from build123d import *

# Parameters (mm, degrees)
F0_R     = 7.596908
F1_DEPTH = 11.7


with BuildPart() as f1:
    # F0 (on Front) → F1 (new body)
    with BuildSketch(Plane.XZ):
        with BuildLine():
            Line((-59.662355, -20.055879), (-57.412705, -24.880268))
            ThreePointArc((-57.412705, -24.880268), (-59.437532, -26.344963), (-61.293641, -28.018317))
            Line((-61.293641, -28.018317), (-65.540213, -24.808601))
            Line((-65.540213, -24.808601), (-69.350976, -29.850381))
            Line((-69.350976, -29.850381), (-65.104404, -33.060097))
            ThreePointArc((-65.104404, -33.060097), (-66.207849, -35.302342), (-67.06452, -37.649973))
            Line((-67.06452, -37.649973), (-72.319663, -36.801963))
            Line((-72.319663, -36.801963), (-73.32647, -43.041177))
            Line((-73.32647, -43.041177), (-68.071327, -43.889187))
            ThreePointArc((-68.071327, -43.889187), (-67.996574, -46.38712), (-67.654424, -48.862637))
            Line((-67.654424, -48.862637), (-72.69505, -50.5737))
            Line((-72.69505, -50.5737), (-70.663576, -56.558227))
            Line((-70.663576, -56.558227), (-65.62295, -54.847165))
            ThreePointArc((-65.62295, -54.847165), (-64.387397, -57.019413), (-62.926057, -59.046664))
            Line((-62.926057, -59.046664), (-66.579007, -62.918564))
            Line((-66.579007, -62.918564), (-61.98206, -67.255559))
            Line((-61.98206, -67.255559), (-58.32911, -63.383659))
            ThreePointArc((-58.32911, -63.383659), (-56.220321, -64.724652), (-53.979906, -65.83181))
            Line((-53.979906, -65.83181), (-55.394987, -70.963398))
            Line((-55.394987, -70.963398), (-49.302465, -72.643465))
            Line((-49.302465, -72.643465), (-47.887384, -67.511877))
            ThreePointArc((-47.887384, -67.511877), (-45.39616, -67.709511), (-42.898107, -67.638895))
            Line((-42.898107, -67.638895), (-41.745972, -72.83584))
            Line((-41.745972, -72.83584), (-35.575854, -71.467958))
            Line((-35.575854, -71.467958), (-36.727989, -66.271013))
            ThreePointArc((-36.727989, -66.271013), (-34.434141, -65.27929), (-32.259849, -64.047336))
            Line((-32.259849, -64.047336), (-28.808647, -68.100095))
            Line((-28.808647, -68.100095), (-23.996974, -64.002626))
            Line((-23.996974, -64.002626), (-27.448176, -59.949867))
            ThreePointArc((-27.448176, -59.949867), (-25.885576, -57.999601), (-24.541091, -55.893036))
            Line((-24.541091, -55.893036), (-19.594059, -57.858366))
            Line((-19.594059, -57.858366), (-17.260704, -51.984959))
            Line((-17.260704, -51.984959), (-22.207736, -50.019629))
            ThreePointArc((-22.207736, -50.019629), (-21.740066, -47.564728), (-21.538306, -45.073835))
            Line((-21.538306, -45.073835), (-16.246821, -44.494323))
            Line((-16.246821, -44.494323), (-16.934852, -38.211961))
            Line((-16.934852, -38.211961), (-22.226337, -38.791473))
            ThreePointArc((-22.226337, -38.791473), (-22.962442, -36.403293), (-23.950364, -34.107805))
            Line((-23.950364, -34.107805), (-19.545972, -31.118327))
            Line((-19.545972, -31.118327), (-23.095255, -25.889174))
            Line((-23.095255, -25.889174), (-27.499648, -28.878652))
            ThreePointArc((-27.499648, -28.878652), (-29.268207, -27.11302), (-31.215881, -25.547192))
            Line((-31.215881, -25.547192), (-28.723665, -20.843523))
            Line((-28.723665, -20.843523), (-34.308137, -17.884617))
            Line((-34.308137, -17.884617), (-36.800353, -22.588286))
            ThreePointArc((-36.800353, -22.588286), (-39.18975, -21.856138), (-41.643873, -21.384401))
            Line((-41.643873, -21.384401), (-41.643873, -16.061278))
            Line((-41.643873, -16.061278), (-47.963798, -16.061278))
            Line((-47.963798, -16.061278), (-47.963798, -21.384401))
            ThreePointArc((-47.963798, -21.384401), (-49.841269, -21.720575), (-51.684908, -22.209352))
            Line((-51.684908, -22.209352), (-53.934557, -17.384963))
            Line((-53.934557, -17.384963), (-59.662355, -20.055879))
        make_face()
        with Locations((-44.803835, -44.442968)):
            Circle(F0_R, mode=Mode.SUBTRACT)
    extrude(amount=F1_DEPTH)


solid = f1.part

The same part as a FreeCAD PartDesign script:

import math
import FreeCAD as App
import Part
import Sketcher
from FreeCAD import Vector
Q = App.Units.Quantity

doc = App.newDocument("Part")
body = doc.addObject("PartDesign::Body", "Body")

sketch1 = body.newObject("Sketcher::SketchObject", "Sketch")
sketch1.AttachmentSupport = (doc.getObject("XZ_Plane"), [""])
sketch1.MapMode = "FlatFace"
sketch1.addGeometry([
    Part.LineSegment(Vector(-59.7, -20.1, 0), Vector(-57.4, -24.9, 0)),
    Part.ArcOfCircle(Part.Circle(Vector(-44.8, -44.4, 0), Vector(0, 0, 1), 23.3), math.radians(122.8), math.radians(135.11)),
    Part.LineSegment(Vector(-61.3, -28, 0), Vector(-65.5, -24.8, 0)),
    Part.LineSegment(Vector(-65.5, -24.8, 0), Vector(-69.4, -29.9, 0)),
    Part.LineSegment(Vector(-69.4, -29.9, 0), Vector(-65.1, -33.1, 0)),
    Part.ArcOfCircle(Part.Circle(Vector(-44.8, -44.4, 0), Vector(0, 0, 1), 23.3), math.radians(150.72), math.radians(163.03)),
    Part.LineSegment(Vector(-67.1, -37.6, 0), Vector(-72.3, -36.8, 0)),
    Part.LineSegment(Vector(-72.3, -36.8, 0), Vector(-73.3, -43, 0)),
    Part.LineSegment(Vector(-73.3, -43, 0), Vector(-68.1, -43.9, 0)),
    Part.ArcOfCircle(Part.Circle(Vector(-44.8, -44.4, 0), Vector(0, 0, 1), 23.3), math.radians(178.64), math.radians(190.95)),
    Part.LineSegment(Vector(-67.7, -48.9, 0), Vector(-72.7, -50.6, 0)),
    Part.LineSegment(Vector(-72.7, -50.6, 0), Vector(-70.7, -56.6, 0)),
    Part.LineSegment(Vector(-70.7, -56.6, 0), Vector(-65.6, -54.8, 0)),
    Part.ArcOfCircle(Part.Circle(Vector(-44.8, -44.4, 0), Vector(0, 0, 1), 23.3), math.radians(-153.45), math.radians(-141.14)),
    Part.LineSegment(Vector(-62.9, -59, 0), Vector(-66.6, -62.9, 0)),
    Part.LineSegment(Vector(-66.6, -62.9, 0), Vector(-62, -67.3, 0)),
    Part.LineSegment(Vector(-62, -67.3, 0), Vector(-58.3, -63.4, 0)),
    Part.ArcOfCircle(Part.Circle(Vector(-44.8, -44.4, 0), Vector(0, 0, 1), 23.3), math.radians(-125.53), math.radians(-113.22)),
    Part.LineSegment(Vector(-54, -65.8, 0), Vector(-55.4, -71, 0)),
    Part.LineSegment(Vector(-55.4, -71, 0), Vector(-49.3, -72.6, 0)),
    Part.LineSegment(Vector(-49.3, -72.6, 0), Vector(-47.9, -67.5, 0)),
    Part.ArcOfCircle(Part.Circle(Vector(-44.8, -44.4, 0), Vector(0, 0, 1), 23.3), math.radians(-97.61), math.radians(-85.3)),
    Part.LineSegment(Vector(-42.9, -67.6, 0), Vector(-41.7, -72.8, 0)),
    Part.LineSegment(Vector(-41.7, -72.8, 0), Vector(-35.6, -71.5, 0)),
    Part.LineSegment(Vector(-35.6, -71.5, 0), Vector(-36.7, -66.3, 0)),
    Part.ArcOfCircle(Part.Circle(Vector(-44.8, -44.4, 0), Vector(0, 0, 1), 23.3), math.radians(-69.7), math.radians(-57.39)),
    Part.LineSegment(Vector(-32.3, -64, 0), Vector(-28.8, -68.1, 0)),
    Part.LineSegment(Vector(-28.8, -68.1, 0), Vector(-24, -64, 0)),
    Part.LineSegment(Vector(-24, -64, 0), Vector(-27.4, -59.9, 0)),
    Part.ArcOfCircle(Part.Circle(Vector(-44.8, -44.4, 0), Vector(0, 0, 1), 23.3), math.radians(-41.78), math.radians(-29.47)),
    Part.LineSegment(Vector(-24.5, -55.9, 0), Vector(-19.6, -57.9, 0)),
    Part.LineSegment(Vector(-19.6, -57.9, 0), Vector(-17.3, -52, 0)),
    Part.LineSegment(Vector(-17.3, -52, 0), Vector(-22.2, -50, 0)),
    Part.ArcOfCircle(Part.Circle(Vector(-44.8, -44.4, 0), Vector(0, 0, 1), 23.3), math.radians(-13.86), math.radians(-1.55)),
    Part.LineSegment(Vector(-21.5, -45.1, 0), Vector(-16.2, -44.5, 0)),
    Part.LineSegment(Vector(-16.2, -44.5, 0), Vector(-16.9, -38.2, 0)),
    Part.LineSegment(Vector(-16.9, -38.2, 0), Vector(-22.2, -38.8, 0)),
    Part.ArcOfCircle(Part.Circle(Vector(-44.8, -44.4, 0), Vector(0, 0, 1), 23.3), math.radians(14.05), math.radians(26.36)),
    Part.LineSegment(Vector(-24, -34.1, 0), Vector(-19.5, -31.1, 0)),
    Part.LineSegment(Vector(-19.5, -31.1, 0), Vector(-23.1, -25.9, 0)),
    Part.LineSegment(Vector(-23.1, -25.9, 0), Vector(-27.5, -28.9, 0)),
    Part.ArcOfCircle(Part.Circle(Vector(-44.8, -44.4, 0), Vector(0, 0, 1), 23.3), math.radians(41.97), math.radians(54.28)),
    Part.LineSegment(Vector(-31.2, -25.5, 0), Vector(-28.7, -20.8, 0)),
    Part.LineSegment(Vector(-28.7, -20.8, 0), Vector(-34.3, -17.9, 0)),
    Part.LineSegment(Vector(-34.3, -17.9, 0), Vector(-36.8, -22.6, 0)),
    Part.ArcOfCircle(Part.Circle(Vector(-44.8, -44.4, 0), Vector(0, 0, 1), 23.3), math.radians(69.89), math.radians(82.2)),
    Part.LineSegment(Vector(-41.6, -21.4, 0), Vector(-41.6, -16.1, 0)),
    Part.LineSegment(Vector(-41.6, -16.1, 0), Vector(-48, -16.1, 0)),
    Part.LineSegment(Vector(-48, -16.1, 0), Vector(-48, -21.4, 0)),
    Part.ArcOfCircle(Part.Circle(Vector(-44.8, -44.4, 0), Vector(0, 0, 1), 23.3), math.radians(97.8), math.radians(107.2)),
    Part.LineSegment(Vector(-51.7, -22.2, 0), Vector(-53.9, -17.4, 0)),
    Part.LineSegment(Vector(-53.9, -17.4, 0), Vector(-59.7, -20.1, 0)),
    Part.Circle(Vector(-44.8, -44.4, 0), Vector(0, 0, 1), 7.6),
], False)
sketch1.addConstraint([
    Sketcher.Constraint("Coincident", 0, 2, 1, 1),
    Sketcher.Constraint("Coincident", 1, 2, 2, 1),
    Sketcher.Constraint("Coincident", 2, 2, 3, 1),
    Sketcher.Constraint("Coincident", 3, 2, 4, 1),
    Sketcher.Constraint("Coincident", 4, 2, 5, 1),
    Sketcher.Constraint("Coincident", 5, 2, 6, 1),
    Sketcher.Constraint("Coincident", 6, 2, 7, 1),
    Sketcher.Constraint("Coincident", 7, 2, 8, 1),
    Sketcher.Constraint("Coincident", 8, 2, 9, 1),
    Sketcher.Constraint("Coincident", 9, 2, 10, 1),
    Sketcher.Constraint("Coincident", 10, 2, 11, 1),
    Sketcher.Constraint("Coincident", 11, 2, 12, 1),
    Sketcher.Constraint("Coincident", 12, 2, 13, 1),
    Sketcher.Constraint("Coincident", 13, 2, 14, 1),
    Sketcher.Constraint("Coincident", 14, 2, 15, 1),
    Sketcher.Constraint("Coincident", 15, 2, 16, 1),
    Sketcher.Constraint("Coincident", 16, 2, 17, 1),
    Sketcher.Constraint("Coincident", 17, 2, 18, 1),
    Sketcher.Constraint("Coincident", 18, 2, 19, 1),
    Sketcher.Constraint("Coincident", 19, 2, 20, 1),
    Sketcher.Constraint("Coincident", 20, 2, 21, 1),
    Sketcher.Constraint("Coincident", 21, 2, 22, 1),
    Sketcher.Constraint("Coincident", 22, 2, 23, 1),
    Sketcher.Constraint("Coincident", 23, 2, 24, 1),
    Sketcher.Constraint("Coincident", 24, 2, 25, 1),
    Sketcher.Constraint("Coincident", 25, 2, 26, 1),
    Sketcher.Constraint("Coincident", 26, 2, 27, 1),
    Sketcher.Constraint("Coincident", 27, 2, 28, 1),
    Sketcher.Constraint("Coincident", 28, 2, 29, 1),
    Sketcher.Constraint("Coincident", 29, 2, 30, 1),
    Sketcher.Constraint("Coincident", 30, 2, 31, 1),
    Sketcher.Constraint("Coincident", 31, 2, 32, 1),
    Sketcher.Constraint("Coincident", 32, 2, 33, 1),
    Sketcher.Constraint("Coincident", 33, 2, 34, 1),
    Sketcher.Constraint("Coincident", 34, 2, 35, 1),
    Sketcher.Constraint("Coincident", 35, 2, 36, 1),
    Sketcher.Constraint("Coincident", 36, 2, 37, 1),
    Sketcher.Constraint("Coincident", 37, 2, 38, 1),
    Sketcher.Constraint("Coincident", 38, 2, 39, 1),
    Sketcher.Constraint("Coincident", 39, 2, 40, 1),
    Sketcher.Constraint("Coincident", 40, 2, 41, 1),
    Sketcher.Constraint("Coincident", 41, 2, 42, 1),
    Sketcher.Constraint("Coincident", 42, 2, 43, 1),
    Sketcher.Constraint("Coincident", 43, 2, 44, 1),
    Sketcher.Constraint("Coincident", 44, 2, 45, 1),
    Sketcher.Constraint("Coincident", 45, 2, 46, 1),
    Sketcher.Constraint("Coincident", 46, 2, 47, 1),
    Sketcher.Constraint("Coincident", 47, 2, 48, 1),
    Sketcher.Constraint("Coincident", 48, 2, 49, 1),
    Sketcher.Constraint("Coincident", 49, 2, 50, 1),
    Sketcher.Constraint("Coincident", 50, 2, 51, 1),
    Sketcher.Constraint("Coincident", 51, 2, 0, 1),
    Sketcher.Constraint("Vertical", 46),
    Sketcher.Constraint("Horizontal", 47),
    Sketcher.Constraint("Vertical", 48),
    Sketcher.Constraint("Equal", 5, 37),
    Sketcher.Constraint("Equal", 21, 49),
    Sketcher.Constraint("Perpendicular", 2, 3),
    Sketcher.Constraint("Perpendicular", 3, 4),
    Sketcher.Constraint("Perpendicular", 6, 7),
    Sketcher.Constraint("Perpendicular", 7, 8),
    Sketcher.Constraint("Perpendicular", 10, 11),
    Sketcher.Constraint("Perpendicular", 11, 12),
    Sketcher.Constraint("Perpendicular", 14, 15),
    Sketcher.Constraint("Perpendicular", 15, 16),
    Sketcher.Constraint("Perpendicular", 18, 19),
    Sketcher.Constraint("Perpendicular", 19, 20),
    Sketcher.Constraint("Perpendicular", 22, 23),
    Sketcher.Constraint("Perpendicular", 23, 24),
    Sketcher.Constraint("Perpendicular", 26, 27),
    Sketcher.Constraint("Perpendicular", 27, 28),
    Sketcher.Constraint("Perpendicular", 30, 31),
    Sketcher.Constraint("Perpendicular", 31, 32),
    Sketcher.Constraint("Perpendicular", 34, 35),
    Sketcher.Constraint("Perpendicular", 35, 36),
    Sketcher.Constraint("Perpendicular", 38, 39),
    Sketcher.Constraint("Perpendicular", 39, 40),
    Sketcher.Constraint("Perpendicular", 42, 43),
    Sketcher.Constraint("Perpendicular", 43, 44),
    Sketcher.Constraint("Parallel", 0, 50),
    Sketcher.Constraint("Perpendicular", 50, 51),
    Sketcher.Constraint("Horizontal", 13, 3, 37, 3),
    Sketcher.Constraint("Horizontal", 9, 3, 52, 3),
    Sketcher.Constraint("Horizontal", 45, 2, 48, 2),
    Sketcher.Constraint("Vertical", 17, 3, 29, 3),
    Sketcher.Constraint("Vertical", 29, 3, 33, 3),
    Sketcher.Constraint("Vertical", 37, 3, 49, 3),
    Sketcher.Constraint("Equal", 0, 2),
    Sketcher.Constraint("Equal", 2, 4),
    Sketcher.Constraint("Equal", 4, 6),
    Sketcher.Constraint("Equal", 3, 7),
    Sketcher.Constraint("Equal", 6, 8),
    Sketcher.Constraint("Equal", 8, 10),
    Sketcher.Constraint("Equal", 7, 11),
    Sketcher.Constraint("Equal", 10, 12),
    Sketcher.Constraint("Equal", 12, 14),
    Sketcher.Constraint("Equal", 11, 15),
    Sketcher.Constraint("Equal", 14, 16),
    Sketcher.Constraint("Equal", 16, 18),
    Sketcher.Constraint("Equal", 15, 19),
    Sketcher.Constraint("Equal", 18, 20),
    Sketcher.Constraint("Equal", 20, 22),
    Sketcher.Constraint("Equal", 19, 23),
    Sketcher.Constraint("Equal", 22, 24),
    Sketcher.Constraint("Equal", 24, 26),
    Sketcher.Constraint("Equal", 23, 27),
    Sketcher.Constraint("Equal", 26, 28),
    Sketcher.Constraint("Equal", 28, 30),
    Sketcher.Constraint("Equal", 27, 31),
    Sketcher.Constraint("Equal", 30, 32),
    Sketcher.Constraint("Equal", 32, 34),
    Sketcher.Constraint("Equal", 31, 35),
    Sketcher.Constraint("Equal", 34, 36),
    Sketcher.Constraint("Equal", 36, 38),
    Sketcher.Constraint("Equal", 35, 39),
    Sketcher.Constraint("Equal", 38, 40),
    Sketcher.Constraint("Equal", 40, 42),
    Sketcher.Constraint("Equal", 39, 43),
    Sketcher.Constraint("Equal", 42, 44),
    Sketcher.Constraint("Equal", 44, 50),
    Sketcher.Constraint("Equal", 43, 51),
    Sketcher.Constraint("Angle", 0, Q("-64.999995 deg")),
    Sketcher.Constraint("Angle", 22, Q("-77.5 deg")),
    Sketcher.Constraint("Angle", 10, Q("-161.249989 deg")),
    Sketcher.Constraint("Angle", 34, Q("6.250002 deg")),
    Sketcher.Constraint("Radius", 9, 23.274101),
    Sketcher.Constraint("Radius", 1, 23.27399),
    Sketcher.Constraint("Radius", 13, 23.274068),
    Sketcher.Constraint("Radius", 25, 23.273952),
    Sketcher.Constraint("Radius", 41, 23.274071),
    Sketcher.Constraint("Radius", 45, 23.274159),
    Sketcher.Constraint("Diameter", 52, 15.193816),
    Sketcher.Constraint("Radius", 5, 23.274107),
    Sketcher.Constraint("Radius", 17, 23.274013),
    Sketcher.Constraint("Radius", 21, 23.273935),
    Sketcher.Constraint("Radius", 29, 23.274125),
    Sketcher.Constraint("Radius", 33, 23.274116),
    Sketcher.Constraint("DistanceY", 1, 3, -1, 1, 44.442898),
    Sketcher.Constraint("DistanceY", 2, 2, -1, 1, 24.808601),
    Sketcher.Constraint("DistanceY", 10, 2, -1, 1, 50.5737),
    Sketcher.Constraint("DistanceY", 18, 2, -1, 1, 70.963398),
    Sketcher.Constraint("DistanceY", 45, 2, -1, 1, 21.384401),
    Sketcher.Constraint("DistanceX", 47, 2, 47, 1, 6.319925),
    Sketcher.Constraint("DistanceY", 46, 1, 46, 2, 5.323123),
    Sketcher.Constraint("DistanceY", 5, 3, -1, 1, 44.44298),
    Sketcher.Constraint("DistanceY", 9, 3, -1, 1, 44.44297),
    Sketcher.Constraint("DistanceX", 17, 3, -1, 1, 44.803868),
    Sketcher.Constraint("DistanceX", 21, 3, -1, 1, 44.80384),
    Sketcher.Constraint("DistanceY", 29, 3, -1, 1, 44.442939),
    Sketcher.Constraint("DistanceX", 37, 3, -1, 1, 44.803861),
    Sketcher.Constraint("DistanceX", 41, 3, -1, 1, 44.80383),
    Sketcher.Constraint("DistanceY", 41, 3, -1, 1, 44.442959),
    Sketcher.Constraint("DistanceY", 0, 2, -1, 1, 24.880268),
    Sketcher.Constraint("DistanceX", 1, 2, -1, 1, 61.293641),
    Sketcher.Constraint("DistanceY", 3, 2, -1, 1, 29.850381),
    Sketcher.Constraint("DistanceX", 5, 2, -1, 1, 67.06452),
    Sketcher.Constraint("DistanceX", 7, 2, -1, 1, 73.32647),
    Sketcher.Constraint("DistanceX", 10, 2, -1, 1, 72.69505),
    Sketcher.Constraint("DistanceX", 12, 2, -1, 1, 65.62295),
    Sketcher.Constraint("DistanceX", 15, 2, -1, 1, 61.98206),
    Sketcher.Constraint("DistanceY", 15, 2, -1, 1, 67.255559),
    Sketcher.Constraint("DistanceX", 16, 2, -1, 1, 58.32911),
    Sketcher.Constraint("DistanceY", 17, 2, -1, 1, 65.83181),
    Sketcher.Constraint("DistanceY", 22, 2, -1, 1, 72.83584),
    Sketcher.Constraint("DistanceX", 25, 2, -1, 1, 32.259849),
    Sketcher.Constraint("DistanceX", 29, 2, -1, 1, 24.541091),
    Sketcher.Constraint("DistanceX", 30, 2, -1, 1, 19.594059),
    Sketcher.Constraint("DistanceX", 38, 2, -1, 1, 19.545972),
    Sketcher.Constraint("DistanceX", 41, 2, -1, 1, 31.215881),
    Sketcher.Constraint("DistanceX", 25, 3, -1, 1, 44.803778),
    Sketcher.Constraint("DistanceX", 45, 3, -1, 1, 44.803856),
    Sketcher.Constraint("DistanceX", 52, 3, -1, 1, 44.803835),
])
pad1 = body.newObject("PartDesign::Pad", "Pad")
pad1.Profile = sketch1
pad1.Length = 11.7

doc.recompute()
